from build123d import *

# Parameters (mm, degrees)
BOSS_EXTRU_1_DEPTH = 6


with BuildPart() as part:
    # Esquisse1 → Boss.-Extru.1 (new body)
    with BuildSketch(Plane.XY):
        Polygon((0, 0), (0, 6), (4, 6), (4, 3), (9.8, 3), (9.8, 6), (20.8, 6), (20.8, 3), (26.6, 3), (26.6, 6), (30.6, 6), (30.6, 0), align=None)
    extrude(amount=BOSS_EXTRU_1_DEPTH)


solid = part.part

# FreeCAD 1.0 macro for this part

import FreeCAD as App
import Part
import Sketcher

V = App.Vector
Q = App.Units.Quantity

doc = App.newDocument("Part")
body = doc.addObject("PartDesign::Body", "Body")

# Sketch on XY plane
sketch1 = body.newObject("Sketcher::SketchObject", "Sketch")
sketch1.AttachmentSupport = (doc.getObject("XY_Plane"), [""])
sketch1.MapMode = "FlatFace"
sketch1.addGeometry([
    Part.LineSegment(V(0, 6, 0), V(0, 0, 0)),  # 0
    Part.LineSegment(V(0, 0, 0), V(30.6, 0, 0)),  # 1
    Part.LineSegment(V(30.6, 0, 0), V(30.6, 6, 0)),  # 2
    Part.LineSegment(V(30.6, 6, 0), V(26.6, 6, 0)),  # 3
    Part.LineSegment(V(26.6, 6, 0), V(26.6, 3, 0)),  # 4
    Part.LineSegment(V(26.6, 3, 0), V(20.8, 3, 0)),  # 5
    Part.LineSegment(V(20.8, 3, 0), V(20.8, 6, 0)),  # 6
    Part.LineSegment(V(20.8, 6, 0), V(9.8, 6, 0)),  # 7
    Part.LineSegment(V(9.8, 6, 0), V(9.8, 3, 0)),  # 8
    Part.LineSegment(V(9.8, 3, 0), V(4, 3, 0)),  # 9
    Part.LineSegment(V(4, 3, 0), V(4, 6, 0)),  # 10
    Part.LineSegment(V(4, 6, 0), V(0, 6, 0)),  # 11
], False)
sketch1.addConstraint([
    Sketcher.Constraint("Coincident", 0, 2, 1, 1),
    Sketcher.Constraint("Coincident", 1, 2, 2, 1),
    Sketcher.Constraint("Coincident", 2, 2, 3, 1),
    Sketcher.Constraint("Coincident", 3, 2, 4, 1),
    Sketcher.Constraint("Coincident", 4, 2, 5, 1),
    Sketcher.Constraint("Coincident", 5, 2, 6, 1),
    Sketcher.Constraint("Coincident", 6, 2, 7, 1),
    Sketcher.Constraint("Coincident", 7, 2, 8, 1),
    Sketcher.Constraint("Coincident", 8, 2, 9, 1),
    Sketcher.Constraint("Coincident", 9, 2, 10, 1),
    Sketcher.Constraint("Coincident", 10, 2, 11, 1),
    Sketcher.Constraint("Coincident", 11, 2, 0, 1),
    Sketcher.Constraint("Vertical", 0),
    Sketcher.Constraint("Horizontal", 1),
    Sketcher.Constraint("Vertical", 2),
    Sketcher.Constraint("Horizontal", 3),
    Sketcher.Constraint("Vertical", 4),
    Sketcher.Constraint("Horizontal", 5),
    Sketcher.Constraint("Vertical", 6),
    Sketcher.Constraint("Horizontal", 7),
    Sketcher.Constraint("Vertical", 8),
    Sketcher.Constraint("Horizontal", 9),
    Sketcher.Constraint("Vertical", 10),
    Sketcher.Constraint("Horizontal", 11),
    Sketcher.Constraint("Coincident", 0, 2, -1, 1),
    Sketcher.Constraint("Horizontal", 3, 2, 6, 2),
    Sketcher.Constraint("Horizontal", 5, 2, 8, 2),
    Sketcher.Constraint("Horizontal", 7, 2, 10, 2),
    Sketcher.Constraint("Equal", 5, 9),
    Sketcher.Constraint("Equal", 3, 11),
    Sketcher.Constraint("DistanceX", 3, 2, 3, 1, Q("4 mm")),
    Sketcher.Constraint("DistanceX", 7, 2, 7, 1, Q("11 mm")),
    Sketcher.Constraint("DistanceY", 0, 2, 0, 1, Q("6 mm")),
    Sketcher.Constraint("DistanceY", 4, 2, 4, 1, Q("3 mm")),
    Sketcher.Constraint("DistanceX", 1, 1, 1, 2, Q("30.6 mm")),
])
pad1 = body.newObject("PartDesign::Pad", "Pad")
pad1.Profile = sketch1
pad1.Length = 6

doc.recompute()
